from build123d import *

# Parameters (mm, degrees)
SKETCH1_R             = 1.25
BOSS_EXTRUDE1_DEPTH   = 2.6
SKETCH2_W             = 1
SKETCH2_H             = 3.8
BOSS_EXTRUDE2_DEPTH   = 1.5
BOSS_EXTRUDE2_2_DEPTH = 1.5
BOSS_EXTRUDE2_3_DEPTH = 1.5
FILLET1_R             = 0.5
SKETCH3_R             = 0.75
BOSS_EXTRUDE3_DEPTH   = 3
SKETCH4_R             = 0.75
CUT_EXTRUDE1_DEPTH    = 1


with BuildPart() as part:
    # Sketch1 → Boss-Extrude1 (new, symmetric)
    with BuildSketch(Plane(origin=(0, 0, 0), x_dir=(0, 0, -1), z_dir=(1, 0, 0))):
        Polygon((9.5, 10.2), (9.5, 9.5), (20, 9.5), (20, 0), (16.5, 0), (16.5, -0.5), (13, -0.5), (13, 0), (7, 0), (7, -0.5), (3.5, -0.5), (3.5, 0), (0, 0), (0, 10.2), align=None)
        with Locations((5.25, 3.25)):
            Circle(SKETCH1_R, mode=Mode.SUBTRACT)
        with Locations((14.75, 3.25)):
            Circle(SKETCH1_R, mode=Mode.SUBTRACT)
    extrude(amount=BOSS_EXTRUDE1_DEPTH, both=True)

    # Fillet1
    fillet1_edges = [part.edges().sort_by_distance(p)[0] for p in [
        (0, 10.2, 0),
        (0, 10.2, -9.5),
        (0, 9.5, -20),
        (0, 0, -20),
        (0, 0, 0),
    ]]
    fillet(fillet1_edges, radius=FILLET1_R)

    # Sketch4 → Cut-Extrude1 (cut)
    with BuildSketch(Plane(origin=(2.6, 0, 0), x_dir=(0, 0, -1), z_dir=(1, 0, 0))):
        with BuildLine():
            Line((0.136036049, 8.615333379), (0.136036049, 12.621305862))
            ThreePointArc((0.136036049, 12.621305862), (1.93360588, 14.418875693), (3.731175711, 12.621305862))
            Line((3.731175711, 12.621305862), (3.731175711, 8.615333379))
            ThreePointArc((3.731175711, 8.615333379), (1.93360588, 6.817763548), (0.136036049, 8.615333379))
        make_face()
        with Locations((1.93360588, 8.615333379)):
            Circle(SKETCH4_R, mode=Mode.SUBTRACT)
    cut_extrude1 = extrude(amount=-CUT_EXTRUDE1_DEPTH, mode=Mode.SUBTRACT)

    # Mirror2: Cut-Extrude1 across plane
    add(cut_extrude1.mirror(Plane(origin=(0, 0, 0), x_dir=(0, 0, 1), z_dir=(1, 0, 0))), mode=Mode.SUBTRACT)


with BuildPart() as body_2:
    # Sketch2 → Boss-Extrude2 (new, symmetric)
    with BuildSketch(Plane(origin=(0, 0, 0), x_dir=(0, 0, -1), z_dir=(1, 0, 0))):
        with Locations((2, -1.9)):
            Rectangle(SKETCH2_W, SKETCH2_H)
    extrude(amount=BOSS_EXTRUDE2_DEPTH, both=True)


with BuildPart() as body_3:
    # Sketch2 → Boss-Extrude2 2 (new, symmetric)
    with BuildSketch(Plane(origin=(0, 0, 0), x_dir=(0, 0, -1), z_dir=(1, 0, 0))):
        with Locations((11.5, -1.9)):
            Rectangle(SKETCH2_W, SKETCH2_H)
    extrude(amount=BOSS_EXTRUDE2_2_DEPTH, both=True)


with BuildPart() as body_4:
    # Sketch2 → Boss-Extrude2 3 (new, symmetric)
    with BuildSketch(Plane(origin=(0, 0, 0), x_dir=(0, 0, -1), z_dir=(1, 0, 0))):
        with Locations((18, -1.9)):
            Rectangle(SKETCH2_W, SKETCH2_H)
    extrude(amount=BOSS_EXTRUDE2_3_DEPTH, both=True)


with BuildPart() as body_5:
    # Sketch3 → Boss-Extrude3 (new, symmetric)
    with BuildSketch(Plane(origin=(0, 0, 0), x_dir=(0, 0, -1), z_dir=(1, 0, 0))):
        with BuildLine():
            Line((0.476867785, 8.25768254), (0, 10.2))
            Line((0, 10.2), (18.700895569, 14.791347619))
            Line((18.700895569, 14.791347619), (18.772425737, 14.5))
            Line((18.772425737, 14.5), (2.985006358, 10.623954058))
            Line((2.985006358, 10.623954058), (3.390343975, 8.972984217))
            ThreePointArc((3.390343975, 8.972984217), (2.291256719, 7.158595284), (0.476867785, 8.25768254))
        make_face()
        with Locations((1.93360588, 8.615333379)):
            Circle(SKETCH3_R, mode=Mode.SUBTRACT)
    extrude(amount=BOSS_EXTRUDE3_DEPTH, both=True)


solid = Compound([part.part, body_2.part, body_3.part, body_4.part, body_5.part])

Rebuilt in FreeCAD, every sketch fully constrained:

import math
import FreeCAD as App
import Part
import Sketcher
from FreeCAD import Vector


def edges_at(feature, points):
    """Names of the edges that pass closest to the given points."""
    edges = feature.Shape.Edges
    near = lambda p: min(range(len(edges)), key=lambda i: edges[i].distToShape(Part.Vertex(*p))[0])
    return sorted({f"Edge{near(p) + 1}" for p in points})


def add_polygon(sketch, points):
    """Adds a closed chain of lines whose ends are joined by coincident constraints."""
    first, n = sketch.GeometryCount, len(points)
    for a, b in zip(points, points[1:] + points[:1]):
        sketch.addGeometry(Part.LineSegment(App.Vector(*a, 0), App.Vector(*b, 0)), False)
    for i in range(n):
        sketch.addConstraint(Sketcher.Constraint("Coincident", first + i, 2, first + (i + 1) % n, 1))

doc = App.newDocument("Part")
body = doc.addObject("PartDesign::Body", "Body")

sketch1 = doc.addObject("Sketcher::SketchObject", "Sketch")
body.addObject(sketch1)
sketch1.AttachmentSupport = (doc.YZ_Plane, [""])
sketch1.MapMode = "FlatFace"
add_polygon(sketch1, [(9.5, -9.5), (10.2, -9.5), (10.2, 0), (0, 0), (0, -3.5), (-0.5, -3.5), (-0.5, -7), (0, -7), (0, -13), (-0.5, -13), (-0.5, -16.5), (0, -16.5), (0, -20), (9.5, -20)])
sketch1.addGeometry(Part.Circle(Vector(3.2, -14.8, 0), Vector(0, 0, 1), 1.2), False)
sketch1.addGeometry(Part.Circle(Vector(3.2, -5.2, 0), Vector(0, 0, 1), 1.2), False)
sketch1.addConstraint(Sketcher.Constraint("Horizontal", 0))
sketch1.addConstraint(Sketcher.Constraint("Vertical", 1))
sketch1.addConstraint(Sketcher.Constraint("Horizontal", 2))
sketch1.addConstraint(Sketcher.Constraint("Vertical", 3))
sketch1.addConstraint(Sketcher.Constraint("Horizontal", 4))
sketch1.addConstraint(Sketcher.Constraint("Vertical", 5))
sketch1.addConstraint(Sketcher.Constraint("Horizontal", 6))
sketch1.addConstraint(Sketcher.Constraint("Vertical", 7))
sketch1.addConstraint(Sketcher.Constraint("Horizontal", 8))
sketch1.addConstraint(Sketcher.Constraint("Vertical", 9))
sketch1.addConstraint(Sketcher.Constraint("Horizontal", 10))
sketch1.addConstraint(Sketcher.Constraint("Vertical", 11))
sketch1.addConstraint(Sketcher.Constraint("Horizontal", 12))
sketch1.addConstraint(Sketcher.Constraint("Vertical", 13))
sketch1.addConstraint(Sketcher.Constraint("Coincident", 2, 2, -1, 1))
sketch1.addConstraint(Sketcher.Constraint("Equal", 14, 15))
sketch1.addConstraint(Sketcher.Constraint("PointOnObject", 6, 2, -2))
sketch1.addConstraint(Sketcher.Constraint("PointOnObject", 10, 2, -2))
sketch1.addConstraint(Sketcher.Constraint("Vertical", 14, 3, 15, 3))
sketch1.addConstraint(Sketcher.Constraint("Vertical", 5, 2, 8, 2))
sketch1.addConstraint(Sketcher.Constraint("Equal", 12, 1))
sketch1.addConstraint(Sketcher.Constraint("Equal", 3, 5))
sketch1.addConstraint(Sketcher.Constraint("Equal", 5, 9))
sketch1.addConstraint(Sketcher.Constraint("Equal", 9, 11))
sketch1.addConstraint(Sketcher.Constraint("Diameter", 14, 2.5))
sketch1.addConstraint(Sketcher.Constraint("DistanceY", 7, 2, 7, 1, 6.0))
sketch1.addConstraint(Sketcher.Constraint("DistanceX", 0, 1, 0, 2, 0.7))
sketch1.addConstraint(Sketcher.Constraint("DistanceX", 2, 2, 2, 1, 10.2))
sketch1.addConstraint(Sketcher.Constraint("DistanceX", 4, 2, 4, 1, 0.5))
sketch1.addConstraint(Sketcher.Constraint("DistanceY", 3, 2, 3, 1, 3.5))
sketch1.addConstraint(Sketcher.Constraint("DistanceY", 14, 3, 15, 3, 9.5))
sketch1.addConstraint(Sketcher.Constraint("DistanceX", -1, 1, 14, 3, 3.25))
sketch1.addConstraint(Sketcher.Constraint("DistanceY", 14, 3, -1, 1, 14.75))
pad1 = doc.addObject("PartDesign::Pad", "Pad")
body.addObject(pad1)
pad1.Profile = sketch1
pad1.Length = 5.2
pad1.Midplane = True
doc.recompute()

fillet = doc.addObject("PartDesign::Fillet", "Fillet")
body.addObject(fillet)
fillet.Base = (pad1, edges_at(pad1, [
    (0, 10.2, 0),
    (0, 10.2, -9.5),
    (0, 9.5, -20),
    (0, 0, -20),
    (0, 0, 0),
]))
fillet.Radius = 0.5

sketch2 = doc.addObject("Sketcher::SketchObject", "Sketch001")
body.addObject(sketch2)
sketch2.AttachmentSupport = (doc.YZ_Plane, [""])
sketch2.MapMode = "FlatFace"
sketch2.AttachmentOffset = App.Placement(Vector(0, 0, 2.6), App.Rotation())
sketch2.addGeometry(Part.LineSegment(Vector(12.6, -0.1, 0), Vector(8.6, -0.1, 0)), False)
sketch2.addGeometry(Part.ArcOfCircle(Part.Circle(Vector(8.6, -1.9, 0), Vector(0, 0, 1), 1.8), math.radians(90), math.radians(270)), False)
sketch2.addGeometry(Part.LineSegment(Vector(8.6, -3.7, 0), Vector(12.6, -3.7, 0)), False)
sketch2.addGeometry(Part.ArcOfCircle(Part.Circle(Vector(12.6, -1.9, 0), Vector(0, 0, 1), 1.8), math.radians(-90), math.radians(90)), False)
sketch2.addGeometry(Part.Circle(Vector(8.6, -1.9, 0), Vector(0, 0, 1), 0.8), False)
sketch2.addConstraint(Sketcher.Constraint("Tangent", 0, 2, 1, 1))
sketch2.addConstraint(Sketcher.Constraint("Tangent", 1, 2, 2, 1))
sketch2.addConstraint(Sketcher.Constraint("Tangent", 2, 2, 3, 1))
sketch2.addConstraint(Sketcher.Constraint("Tangent", 3, 2, 0, 1))
sketch2.addConstraint(Sketcher.Constraint("Horizontal", 0))
sketch2.addConstraint(Sketcher.Constraint("Horizontal", 2))
sketch2.addConstraint(Sketcher.Constraint("Coincident", 4, 3, 1, 3))
sketch2.addConstraint(Sketcher.Constraint("Diameter", 4, 1.5))
sketch2.addConstraint(Sketcher.Constraint("Radius", 1, 1.79757))
sketch2.addConstraint(Sketcher.Constraint("DistanceX", 0, 2, 0, 1, 4.005972))
sketch2.addConstraint(Sketcher.Constraint("DistanceX", -1, 1, 1, 3, 8.615333))
sketch2.addConstraint(Sketcher.Constraint("DistanceY", 1, 3, -1, 1, 1.933606))
pocket1 = doc.addObject("PartDesign::Pocket", "Pocket")
body.addObject(pocket1)
pocket1.Profile = sketch2
pocket1.Length = 1
doc.recompute()

mirrored = doc.addObject("PartDesign::Mirrored", "Mirrored")
body.addObject(mirrored)
mirrored.Originals = [pocket1]
mirrored.MirrorPlane = (doc.YZ_Plane, [""])
body.Tip = mirrored
body2 = doc.addObject("PartDesign::Body", "Body001")

sketch3 = doc.addObject("Sketcher::SketchObject", "Sketch002")
body2.addObject(sketch3)
sketch3.AttachmentSupport = (doc.getObject("YZ_Plane001"), [""])
sketch3.MapMode = "FlatFace"
add_polygon(sketch3, [(0, -1.5), (-3.8, -1.5), (-3.8, -2.5), (0, -2.5)])
sketch3.addConstraint(Sketcher.Constraint("Horizontal", 0))
sketch3.addConstraint(Sketcher.Constraint("Vertical", 1))
sketch3.addConstraint(Sketcher.Constraint("Horizontal", 2))
sketch3.addConstraint(Sketcher.Constraint("Vertical", 3))
sketch3.addConstraint(Sketcher.Constraint("PointOnObject", 2, 2, -2))
sketch3.addConstraint(Sketcher.Constraint("DistanceY", 1, 2, 1, 1, 1.0))
sketch3.addConstraint(Sketcher.Constraint("DistanceX", 0, 2, 0, 1, 3.8))
sketch3.addConstraint(Sketcher.Constraint("DistanceY", 0, 2, -1, 1, 1.5))
pad2 = doc.addObject("PartDesign::Pad", "Pad001")
body2.addObject(pad2)
pad2.Profile = sketch3
pad2.Length = 3
pad2.Midplane = True
body3 = doc.addObject("PartDesign::Body", "Body002")

sketch4 = doc.addObject("Sketcher::SketchObject", "Sketch003")
body3.addObject(sketch4)
sketch4.AttachmentSupport = (doc.getObject("YZ_Plane002"), [""])
sketch4.MapMode = "FlatFace"
add_polygon(sketch4, [(0, -11), (-3.8, -11), (-3.8, -12), (0, -12)])
sketch4.addConstraint(Sketcher.Constraint("Horizontal", 0))
sketch4.addConstraint(Sketcher.Constraint("Vertical", 1))
sketch4.addConstraint(Sketcher.Constraint("Horizontal", 2))
sketch4.addConstraint(Sketcher.Constraint("Vertical", 3))
sketch4.addConstraint(Sketcher.Constraint("PointOnObject", 2, 2, -2))
sketch4.addConstraint(Sketcher.Constraint("DistanceY", 1, 2, 1, 1, 1.0))
sketch4.addConstraint(Sketcher.Constraint("DistanceX", 0, 2, 0, 1, 3.8))
sketch4.addConstraint(Sketcher.Constraint("DistanceY", 0, 2, -1, 1, 11.0))
pad3 = doc.addObject("PartDesign::Pad", "Pad002")
body3.addObject(pad3)
pad3.Profile = sketch4
pad3.Length = 3
pad3.Midplane = True
body4 = doc.addObject("PartDesign::Body", "Body003")

sketch5 = doc.addObject("Sketcher::SketchObject", "Sketch004")
body4.addObject(sketch5)
sketch5.AttachmentSupport = (doc.getObject("YZ_Plane003"), [""])
sketch5.MapMode = "FlatFace"
add_polygon(sketch5, [(0, -17.5), (-3.8, -17.5), (-3.8, -18.5), (0, -18.5)])
sketch5.addConstraint(Sketcher.Constraint("Horizontal", 0))
sketch5.addConstraint(Sketcher.Constraint("Vertical", 1))
sketch5.addConstraint(Sketcher.Constraint("Horizontal", 2))
sketch5.addConstraint(Sketcher.Constraint("Vertical", 3))
sketch5.addConstraint(Sketcher.Constraint("PointOnObject", 2, 2, -2))
sketch5.addConstraint(Sketcher.Constraint("DistanceY", 1, 2, 1, 1, 1.0))
sketch5.addConstraint(Sketcher.Constraint("DistanceX", 0, 2, 0, 1, 3.8))
sketch5.addConstraint(Sketcher.Constraint("DistanceY", 0, 2, -1, 1, 17.5))
pad4 = doc.addObject("PartDesign::Pad", "Pad003")
body4.addObject(pad4)
pad4.Profile = sketch5
pad4.Length = 3
pad4.Midplane = True
body5 = doc.addObject("PartDesign::Body", "Body004")

sketch6 = doc.addObject("Sketcher::SketchObject", "Sketch005")
body5.addObject(sketch6)
sketch6.AttachmentSupport = (doc.getObject("YZ_Plane004"), [""])
sketch6.MapMode = "FlatFace"
sketch6.addGeometry(Part.LineSegment(Vector(10.2, 0, 0), Vector(8.26, -0.48, 0)), False)
sketch6.addGeometry(Part.ArcOfCircle(Part.Circle(Vector(8.62, -1.93, 0), Vector(0, 0, 1), 1.5), math.radians(104), math.radians(284)), False)
sketch6.addGeometry(Part.LineSegment(Vector(8.97, -3.39, 0), Vector(10.62, -2.99, 0)), False)
sketch6.addGeometry(Part.LineSegment(Vector(10.62, -2.99, 0), Vector(14.5, -18.77, 0)), False)
sketch6.addGeometry(Part.LineSegment(Vector(14.5, -18.77, 0), Vector(14.79, -18.7, 0)), False)
sketch6.addGeometry(Part.LineSegment(Vector(14.79, -18.7, 0), Vector(10.2, 0, 0)), False)
sketch6.addGeometry(Part.Circle(Vector(8.62, -1.93, 0), Vector(0, 0, 1), 0.75), False)
sketch6.addConstraint(Sketcher.Constraint("Tangent", 0, 2, 1, 1))
sketch6.addConstraint(Sketcher.Constraint("Tangent", 1, 2, 2, 1))
sketch6.addConstraint(Sketcher.Constraint("Coincident", 2, 2, 3, 1))
sketch6.addConstraint(Sketcher.Constraint("Coincident", 3, 2, 4, 1))
sketch6.addConstraint(Sketcher.Constraint("Coincident", 4, 2, 5, 1))
sketch6.addConstraint(Sketcher.Constraint("Coincident", 5, 2, 0, 1))
sketch6.addConstraint(Sketcher.Constraint("Coincident", 6, 3, 1, 3))
sketch6.addConstraint(Sketcher.Constraint("PointOnObject", 5, 2, -1))
sketch6.addConstraint(Sketcher.Constraint("Parallel", 0, 2))
sketch6.addConstraint(Sketcher.Constraint("Perpendicular", 2, 3))
sketch6.addConstraint(Sketcher.Constraint("Perpendicular", 3, 4))
sketch6.addConstraint(Sketcher.Constraint("Perpendicular", 4, 5))
sketch6.addConstraint(Sketcher.Constraint("Diameter", 6, 1.5))
sketch6.addConstraint(Sketcher.Constraint("Radius", 1, 1.5))
sketch6.addConstraint(Sketcher.Constraint("Distance", 0, 2.0))
sketch6.addConstraint(Sketcher.Constraint("Distance", 2, 1.7))
sketch6.addConstraint(Sketcher.Constraint("DistanceX", -1, 1, 3, 2, 14.5))
sketch6.addConstraint(Sketcher.Constraint("DistanceX", -1, 1, 5, 2, 10.2))
sketch6.addConstraint(Sketcher.Constraint("DistanceX", 0, 2, 1, 2, 0.715302))
pad5 = doc.addObject("PartDesign::Pad", "Pad004")
body5.addObject(pad5)
pad5.Profile = sketch6
pad5.Length = 6
pad5.Midplane = True

doc.recompute()
